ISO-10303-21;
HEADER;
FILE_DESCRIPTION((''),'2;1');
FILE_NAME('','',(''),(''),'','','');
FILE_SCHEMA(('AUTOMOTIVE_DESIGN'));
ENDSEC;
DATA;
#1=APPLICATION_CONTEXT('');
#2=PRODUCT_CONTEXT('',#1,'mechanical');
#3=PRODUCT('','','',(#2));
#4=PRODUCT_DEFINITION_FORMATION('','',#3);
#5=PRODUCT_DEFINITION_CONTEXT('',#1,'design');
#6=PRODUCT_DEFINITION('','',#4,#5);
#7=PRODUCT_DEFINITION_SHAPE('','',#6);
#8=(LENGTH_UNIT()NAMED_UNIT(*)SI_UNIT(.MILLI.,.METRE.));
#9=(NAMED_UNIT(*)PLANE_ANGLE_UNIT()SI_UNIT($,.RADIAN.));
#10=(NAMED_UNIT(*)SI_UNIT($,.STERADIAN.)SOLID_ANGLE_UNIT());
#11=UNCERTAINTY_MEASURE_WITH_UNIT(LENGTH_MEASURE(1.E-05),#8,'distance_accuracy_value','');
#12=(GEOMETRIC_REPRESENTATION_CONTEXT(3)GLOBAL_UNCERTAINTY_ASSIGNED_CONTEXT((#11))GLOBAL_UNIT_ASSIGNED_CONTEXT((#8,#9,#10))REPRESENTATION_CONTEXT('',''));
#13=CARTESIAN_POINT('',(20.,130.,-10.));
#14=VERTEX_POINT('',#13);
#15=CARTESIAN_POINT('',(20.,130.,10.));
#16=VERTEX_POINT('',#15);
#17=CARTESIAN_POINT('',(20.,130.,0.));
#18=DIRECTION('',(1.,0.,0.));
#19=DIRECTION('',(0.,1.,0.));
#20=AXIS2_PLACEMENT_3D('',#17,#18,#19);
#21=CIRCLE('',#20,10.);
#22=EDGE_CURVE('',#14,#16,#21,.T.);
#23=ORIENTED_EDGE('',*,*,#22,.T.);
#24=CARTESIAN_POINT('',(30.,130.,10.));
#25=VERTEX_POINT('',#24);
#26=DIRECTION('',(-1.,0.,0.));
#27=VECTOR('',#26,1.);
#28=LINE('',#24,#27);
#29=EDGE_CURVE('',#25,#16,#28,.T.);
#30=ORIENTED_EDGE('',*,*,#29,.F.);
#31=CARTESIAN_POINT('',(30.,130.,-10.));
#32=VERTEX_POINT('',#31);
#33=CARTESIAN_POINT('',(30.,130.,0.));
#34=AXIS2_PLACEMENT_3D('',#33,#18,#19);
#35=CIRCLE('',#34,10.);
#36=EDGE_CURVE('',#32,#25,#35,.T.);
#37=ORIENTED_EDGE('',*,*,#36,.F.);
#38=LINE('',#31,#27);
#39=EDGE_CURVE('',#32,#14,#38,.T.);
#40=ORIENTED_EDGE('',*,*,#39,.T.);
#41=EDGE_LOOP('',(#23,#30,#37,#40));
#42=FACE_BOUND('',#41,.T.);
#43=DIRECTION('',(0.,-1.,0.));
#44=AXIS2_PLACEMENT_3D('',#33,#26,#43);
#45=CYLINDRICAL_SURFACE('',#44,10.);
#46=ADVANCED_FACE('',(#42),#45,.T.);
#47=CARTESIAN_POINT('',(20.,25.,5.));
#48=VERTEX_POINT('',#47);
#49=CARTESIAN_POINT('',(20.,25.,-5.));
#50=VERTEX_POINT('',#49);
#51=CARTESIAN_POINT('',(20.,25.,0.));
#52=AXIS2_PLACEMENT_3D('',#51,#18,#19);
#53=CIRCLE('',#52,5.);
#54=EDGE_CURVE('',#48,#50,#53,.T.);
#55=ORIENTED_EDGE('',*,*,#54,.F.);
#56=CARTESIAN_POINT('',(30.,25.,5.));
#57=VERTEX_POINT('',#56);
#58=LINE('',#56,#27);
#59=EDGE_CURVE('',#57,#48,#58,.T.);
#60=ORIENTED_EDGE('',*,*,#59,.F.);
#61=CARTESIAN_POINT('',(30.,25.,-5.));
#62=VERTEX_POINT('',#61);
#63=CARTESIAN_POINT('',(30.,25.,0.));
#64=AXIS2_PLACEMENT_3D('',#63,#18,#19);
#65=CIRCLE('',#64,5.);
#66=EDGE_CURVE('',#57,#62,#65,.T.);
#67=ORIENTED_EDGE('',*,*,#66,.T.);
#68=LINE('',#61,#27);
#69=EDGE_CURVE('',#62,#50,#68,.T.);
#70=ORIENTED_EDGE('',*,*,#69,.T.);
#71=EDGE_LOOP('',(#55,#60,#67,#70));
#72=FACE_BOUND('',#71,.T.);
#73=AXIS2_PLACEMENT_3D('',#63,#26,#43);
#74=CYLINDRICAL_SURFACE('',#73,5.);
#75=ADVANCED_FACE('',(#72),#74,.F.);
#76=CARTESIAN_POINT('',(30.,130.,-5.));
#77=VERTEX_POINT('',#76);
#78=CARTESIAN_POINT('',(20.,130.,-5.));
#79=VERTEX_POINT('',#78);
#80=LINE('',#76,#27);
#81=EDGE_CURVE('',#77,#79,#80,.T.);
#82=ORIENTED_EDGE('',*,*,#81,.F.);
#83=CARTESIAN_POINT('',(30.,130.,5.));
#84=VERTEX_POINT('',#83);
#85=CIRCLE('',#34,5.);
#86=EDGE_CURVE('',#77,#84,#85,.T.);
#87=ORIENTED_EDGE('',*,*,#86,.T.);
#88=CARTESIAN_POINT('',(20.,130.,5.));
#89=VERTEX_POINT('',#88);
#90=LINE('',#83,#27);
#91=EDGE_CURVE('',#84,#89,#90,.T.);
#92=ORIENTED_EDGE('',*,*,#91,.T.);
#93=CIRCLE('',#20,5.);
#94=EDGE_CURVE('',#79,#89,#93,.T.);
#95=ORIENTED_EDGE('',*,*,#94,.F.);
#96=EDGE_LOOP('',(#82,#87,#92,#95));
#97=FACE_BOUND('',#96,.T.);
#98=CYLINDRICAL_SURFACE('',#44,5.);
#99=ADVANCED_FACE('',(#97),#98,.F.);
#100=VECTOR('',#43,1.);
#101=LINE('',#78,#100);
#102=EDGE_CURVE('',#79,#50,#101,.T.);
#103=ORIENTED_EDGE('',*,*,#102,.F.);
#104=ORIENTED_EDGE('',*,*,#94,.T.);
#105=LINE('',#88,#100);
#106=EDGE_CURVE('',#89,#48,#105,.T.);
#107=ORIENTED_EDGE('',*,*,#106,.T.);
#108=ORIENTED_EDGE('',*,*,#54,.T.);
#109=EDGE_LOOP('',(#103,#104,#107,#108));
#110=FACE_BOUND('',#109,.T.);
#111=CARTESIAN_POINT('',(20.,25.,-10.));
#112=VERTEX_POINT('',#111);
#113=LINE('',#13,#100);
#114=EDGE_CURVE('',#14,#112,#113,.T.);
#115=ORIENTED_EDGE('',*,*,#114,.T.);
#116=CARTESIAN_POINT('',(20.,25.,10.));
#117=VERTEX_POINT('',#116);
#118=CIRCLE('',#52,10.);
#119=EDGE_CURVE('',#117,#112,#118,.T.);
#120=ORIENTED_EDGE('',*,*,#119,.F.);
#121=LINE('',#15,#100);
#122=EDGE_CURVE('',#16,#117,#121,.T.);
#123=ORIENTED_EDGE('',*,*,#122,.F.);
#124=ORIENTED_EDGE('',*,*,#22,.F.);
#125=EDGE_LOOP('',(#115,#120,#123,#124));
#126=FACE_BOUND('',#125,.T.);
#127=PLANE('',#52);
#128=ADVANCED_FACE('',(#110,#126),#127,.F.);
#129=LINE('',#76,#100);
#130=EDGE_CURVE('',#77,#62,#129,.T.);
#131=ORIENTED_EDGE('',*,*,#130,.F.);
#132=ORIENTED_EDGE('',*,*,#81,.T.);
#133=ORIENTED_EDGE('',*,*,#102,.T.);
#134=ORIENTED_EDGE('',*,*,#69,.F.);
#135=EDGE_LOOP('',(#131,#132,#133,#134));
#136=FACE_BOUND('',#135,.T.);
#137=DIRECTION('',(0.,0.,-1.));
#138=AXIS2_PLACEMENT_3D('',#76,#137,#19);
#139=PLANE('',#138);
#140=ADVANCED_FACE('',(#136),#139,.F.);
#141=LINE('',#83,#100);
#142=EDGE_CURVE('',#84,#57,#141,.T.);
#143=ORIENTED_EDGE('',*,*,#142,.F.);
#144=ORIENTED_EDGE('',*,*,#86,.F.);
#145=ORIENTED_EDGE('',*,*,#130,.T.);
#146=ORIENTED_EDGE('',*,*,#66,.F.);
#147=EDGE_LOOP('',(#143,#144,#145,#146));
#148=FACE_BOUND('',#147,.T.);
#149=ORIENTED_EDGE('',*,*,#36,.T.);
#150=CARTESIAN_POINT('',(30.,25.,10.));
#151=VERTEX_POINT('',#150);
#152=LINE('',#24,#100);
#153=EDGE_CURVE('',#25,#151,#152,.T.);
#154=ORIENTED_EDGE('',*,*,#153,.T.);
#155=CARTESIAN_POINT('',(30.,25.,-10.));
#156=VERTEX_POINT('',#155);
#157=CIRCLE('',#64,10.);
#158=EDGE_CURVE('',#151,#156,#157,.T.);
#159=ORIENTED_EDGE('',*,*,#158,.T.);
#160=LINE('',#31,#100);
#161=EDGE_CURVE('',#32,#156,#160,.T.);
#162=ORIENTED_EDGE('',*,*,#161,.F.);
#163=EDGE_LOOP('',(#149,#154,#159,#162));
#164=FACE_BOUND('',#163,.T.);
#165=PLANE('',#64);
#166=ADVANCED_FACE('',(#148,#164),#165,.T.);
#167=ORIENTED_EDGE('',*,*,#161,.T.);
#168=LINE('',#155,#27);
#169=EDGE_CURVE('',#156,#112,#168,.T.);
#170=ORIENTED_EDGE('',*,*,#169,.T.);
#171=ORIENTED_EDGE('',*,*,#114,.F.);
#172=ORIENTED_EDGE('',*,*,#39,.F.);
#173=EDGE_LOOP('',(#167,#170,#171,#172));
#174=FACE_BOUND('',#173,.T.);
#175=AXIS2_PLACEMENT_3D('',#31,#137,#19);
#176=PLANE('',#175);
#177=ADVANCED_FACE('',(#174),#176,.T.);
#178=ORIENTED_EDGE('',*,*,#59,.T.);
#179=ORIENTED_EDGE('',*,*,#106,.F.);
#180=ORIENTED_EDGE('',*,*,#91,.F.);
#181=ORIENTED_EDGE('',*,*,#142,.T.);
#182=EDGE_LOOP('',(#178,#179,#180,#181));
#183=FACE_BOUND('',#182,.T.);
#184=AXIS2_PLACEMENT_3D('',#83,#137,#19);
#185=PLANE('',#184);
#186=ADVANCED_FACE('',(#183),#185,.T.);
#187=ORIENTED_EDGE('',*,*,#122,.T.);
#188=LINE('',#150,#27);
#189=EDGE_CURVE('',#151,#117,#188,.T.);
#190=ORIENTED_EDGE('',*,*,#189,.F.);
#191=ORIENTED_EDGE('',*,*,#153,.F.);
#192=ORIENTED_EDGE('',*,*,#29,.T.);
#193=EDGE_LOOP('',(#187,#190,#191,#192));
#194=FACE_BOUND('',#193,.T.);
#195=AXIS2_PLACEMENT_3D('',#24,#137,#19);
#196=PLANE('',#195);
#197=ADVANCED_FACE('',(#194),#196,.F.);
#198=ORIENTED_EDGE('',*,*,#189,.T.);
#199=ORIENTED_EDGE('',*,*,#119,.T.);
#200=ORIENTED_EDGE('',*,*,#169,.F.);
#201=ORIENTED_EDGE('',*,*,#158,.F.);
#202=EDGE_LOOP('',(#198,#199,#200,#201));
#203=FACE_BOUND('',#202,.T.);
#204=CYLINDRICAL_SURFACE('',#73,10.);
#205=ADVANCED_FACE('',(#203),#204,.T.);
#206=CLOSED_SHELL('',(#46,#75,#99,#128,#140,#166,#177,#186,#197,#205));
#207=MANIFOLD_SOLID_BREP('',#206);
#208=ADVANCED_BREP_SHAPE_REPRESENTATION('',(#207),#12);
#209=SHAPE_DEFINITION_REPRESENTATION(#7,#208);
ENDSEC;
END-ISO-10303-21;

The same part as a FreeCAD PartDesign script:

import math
import FreeCAD as App
import Part
import Sketcher
Q = App.Units.Quantity

doc = App.newDocument("Part")
body = doc.addObject("PartDesign::Body", "Body")

sketch1 = body.newObject("Sketcher::SketchObject", "Sketch")
sketch1.AttachmentSupport = (doc.getObject("YZ_Plane"), [""])
sketch1.MapMode = "FlatFace"
sketch1.AttachmentOffset = App.Placement(App.Vector(0, 0, 20), App.Rotation())
sketch1.addGeometry([
    Part.LineSegment(App.Vector(25, -10, 0), App.Vector(130, -10, 0)),
    Part.ArcOfCircle(Part.Circle(App.Vector(130, 0, 0), App.Vector(0, 0, 1), 10), math.radians(-90), math.radians(90)),
    Part.LineSegment(App.Vector(130, 10, 0), App.Vector(25, 10, 0)),
    Part.ArcOfCircle(Part.Circle(App.Vector(25, 0, 0), App.Vector(0, 0, 1), 10), math.radians(90), math.radians(270)),
    Part.LineSegment(App.Vector(130, -5, 0), App.Vector(25, -5, 0)),
    Part.ArcOfCircle(Part.Circle(App.Vector(25, 0, 0), App.Vector(0, 0, 1), 5), math.radians(90), math.radians(270)),
    Part.LineSegment(App.Vector(25, 5, 0), App.Vector(130, 5, 0)),
    Part.ArcOfCircle(Part.Circle(App.Vector(130, 0, 0), App.Vector(0, 0, 1), 5), math.radians(-90), math.radians(90)),
], False)
sketch1.addConstraint([
    Sketcher.Constraint("Tangent", 0, 2, 1, 1),
    Sketcher.Constraint("Tangent", 1, 2, 2, 1),
    Sketcher.Constraint("Tangent", 2, 2, 3, 1),
    Sketcher.Constraint("Tangent", 3, 2, 0, 1),
    Sketcher.Constraint("Tangent", 4, 2, 5, 2),
    Sketcher.Constraint("Tangent", 5, 1, 6, 1),
    Sketcher.Constraint("Tangent", 6, 2, 7, 2),
    Sketcher.Constraint("Tangent", 7, 1, 4, 1),
    Sketcher.Constraint("Horizontal", 0),
    Sketcher.Constraint("Horizontal", 2),
    Sketcher.Constraint("Horizontal", 4),
    Sketcher.Constraint("Horizontal", 6),
    Sketcher.Constraint("Coincident", 5, 3, 3, 3),
    Sketcher.Constraint("PointOnObject", 1, 3, -1),
    Sketcher.Constraint("Vertical", 7, 3, 0, 2),
    Sketcher.Constraint("Radius", 1, Q("10 mm")),
    Sketcher.Constraint("Radius", 5, Q("5 mm")),
    Sketcher.Constraint("DistanceX", 0, 1, 0, 2, Q("105 mm")),
    Sketcher.Constraint("DistanceX", -1, 1, 1, 3, Q("130 mm")),
])
pad1 = body.newObject("PartDesign::Pad", "Pad")
pad1.Profile = sketch1
pad1.Length = 10

doc.recompute()
